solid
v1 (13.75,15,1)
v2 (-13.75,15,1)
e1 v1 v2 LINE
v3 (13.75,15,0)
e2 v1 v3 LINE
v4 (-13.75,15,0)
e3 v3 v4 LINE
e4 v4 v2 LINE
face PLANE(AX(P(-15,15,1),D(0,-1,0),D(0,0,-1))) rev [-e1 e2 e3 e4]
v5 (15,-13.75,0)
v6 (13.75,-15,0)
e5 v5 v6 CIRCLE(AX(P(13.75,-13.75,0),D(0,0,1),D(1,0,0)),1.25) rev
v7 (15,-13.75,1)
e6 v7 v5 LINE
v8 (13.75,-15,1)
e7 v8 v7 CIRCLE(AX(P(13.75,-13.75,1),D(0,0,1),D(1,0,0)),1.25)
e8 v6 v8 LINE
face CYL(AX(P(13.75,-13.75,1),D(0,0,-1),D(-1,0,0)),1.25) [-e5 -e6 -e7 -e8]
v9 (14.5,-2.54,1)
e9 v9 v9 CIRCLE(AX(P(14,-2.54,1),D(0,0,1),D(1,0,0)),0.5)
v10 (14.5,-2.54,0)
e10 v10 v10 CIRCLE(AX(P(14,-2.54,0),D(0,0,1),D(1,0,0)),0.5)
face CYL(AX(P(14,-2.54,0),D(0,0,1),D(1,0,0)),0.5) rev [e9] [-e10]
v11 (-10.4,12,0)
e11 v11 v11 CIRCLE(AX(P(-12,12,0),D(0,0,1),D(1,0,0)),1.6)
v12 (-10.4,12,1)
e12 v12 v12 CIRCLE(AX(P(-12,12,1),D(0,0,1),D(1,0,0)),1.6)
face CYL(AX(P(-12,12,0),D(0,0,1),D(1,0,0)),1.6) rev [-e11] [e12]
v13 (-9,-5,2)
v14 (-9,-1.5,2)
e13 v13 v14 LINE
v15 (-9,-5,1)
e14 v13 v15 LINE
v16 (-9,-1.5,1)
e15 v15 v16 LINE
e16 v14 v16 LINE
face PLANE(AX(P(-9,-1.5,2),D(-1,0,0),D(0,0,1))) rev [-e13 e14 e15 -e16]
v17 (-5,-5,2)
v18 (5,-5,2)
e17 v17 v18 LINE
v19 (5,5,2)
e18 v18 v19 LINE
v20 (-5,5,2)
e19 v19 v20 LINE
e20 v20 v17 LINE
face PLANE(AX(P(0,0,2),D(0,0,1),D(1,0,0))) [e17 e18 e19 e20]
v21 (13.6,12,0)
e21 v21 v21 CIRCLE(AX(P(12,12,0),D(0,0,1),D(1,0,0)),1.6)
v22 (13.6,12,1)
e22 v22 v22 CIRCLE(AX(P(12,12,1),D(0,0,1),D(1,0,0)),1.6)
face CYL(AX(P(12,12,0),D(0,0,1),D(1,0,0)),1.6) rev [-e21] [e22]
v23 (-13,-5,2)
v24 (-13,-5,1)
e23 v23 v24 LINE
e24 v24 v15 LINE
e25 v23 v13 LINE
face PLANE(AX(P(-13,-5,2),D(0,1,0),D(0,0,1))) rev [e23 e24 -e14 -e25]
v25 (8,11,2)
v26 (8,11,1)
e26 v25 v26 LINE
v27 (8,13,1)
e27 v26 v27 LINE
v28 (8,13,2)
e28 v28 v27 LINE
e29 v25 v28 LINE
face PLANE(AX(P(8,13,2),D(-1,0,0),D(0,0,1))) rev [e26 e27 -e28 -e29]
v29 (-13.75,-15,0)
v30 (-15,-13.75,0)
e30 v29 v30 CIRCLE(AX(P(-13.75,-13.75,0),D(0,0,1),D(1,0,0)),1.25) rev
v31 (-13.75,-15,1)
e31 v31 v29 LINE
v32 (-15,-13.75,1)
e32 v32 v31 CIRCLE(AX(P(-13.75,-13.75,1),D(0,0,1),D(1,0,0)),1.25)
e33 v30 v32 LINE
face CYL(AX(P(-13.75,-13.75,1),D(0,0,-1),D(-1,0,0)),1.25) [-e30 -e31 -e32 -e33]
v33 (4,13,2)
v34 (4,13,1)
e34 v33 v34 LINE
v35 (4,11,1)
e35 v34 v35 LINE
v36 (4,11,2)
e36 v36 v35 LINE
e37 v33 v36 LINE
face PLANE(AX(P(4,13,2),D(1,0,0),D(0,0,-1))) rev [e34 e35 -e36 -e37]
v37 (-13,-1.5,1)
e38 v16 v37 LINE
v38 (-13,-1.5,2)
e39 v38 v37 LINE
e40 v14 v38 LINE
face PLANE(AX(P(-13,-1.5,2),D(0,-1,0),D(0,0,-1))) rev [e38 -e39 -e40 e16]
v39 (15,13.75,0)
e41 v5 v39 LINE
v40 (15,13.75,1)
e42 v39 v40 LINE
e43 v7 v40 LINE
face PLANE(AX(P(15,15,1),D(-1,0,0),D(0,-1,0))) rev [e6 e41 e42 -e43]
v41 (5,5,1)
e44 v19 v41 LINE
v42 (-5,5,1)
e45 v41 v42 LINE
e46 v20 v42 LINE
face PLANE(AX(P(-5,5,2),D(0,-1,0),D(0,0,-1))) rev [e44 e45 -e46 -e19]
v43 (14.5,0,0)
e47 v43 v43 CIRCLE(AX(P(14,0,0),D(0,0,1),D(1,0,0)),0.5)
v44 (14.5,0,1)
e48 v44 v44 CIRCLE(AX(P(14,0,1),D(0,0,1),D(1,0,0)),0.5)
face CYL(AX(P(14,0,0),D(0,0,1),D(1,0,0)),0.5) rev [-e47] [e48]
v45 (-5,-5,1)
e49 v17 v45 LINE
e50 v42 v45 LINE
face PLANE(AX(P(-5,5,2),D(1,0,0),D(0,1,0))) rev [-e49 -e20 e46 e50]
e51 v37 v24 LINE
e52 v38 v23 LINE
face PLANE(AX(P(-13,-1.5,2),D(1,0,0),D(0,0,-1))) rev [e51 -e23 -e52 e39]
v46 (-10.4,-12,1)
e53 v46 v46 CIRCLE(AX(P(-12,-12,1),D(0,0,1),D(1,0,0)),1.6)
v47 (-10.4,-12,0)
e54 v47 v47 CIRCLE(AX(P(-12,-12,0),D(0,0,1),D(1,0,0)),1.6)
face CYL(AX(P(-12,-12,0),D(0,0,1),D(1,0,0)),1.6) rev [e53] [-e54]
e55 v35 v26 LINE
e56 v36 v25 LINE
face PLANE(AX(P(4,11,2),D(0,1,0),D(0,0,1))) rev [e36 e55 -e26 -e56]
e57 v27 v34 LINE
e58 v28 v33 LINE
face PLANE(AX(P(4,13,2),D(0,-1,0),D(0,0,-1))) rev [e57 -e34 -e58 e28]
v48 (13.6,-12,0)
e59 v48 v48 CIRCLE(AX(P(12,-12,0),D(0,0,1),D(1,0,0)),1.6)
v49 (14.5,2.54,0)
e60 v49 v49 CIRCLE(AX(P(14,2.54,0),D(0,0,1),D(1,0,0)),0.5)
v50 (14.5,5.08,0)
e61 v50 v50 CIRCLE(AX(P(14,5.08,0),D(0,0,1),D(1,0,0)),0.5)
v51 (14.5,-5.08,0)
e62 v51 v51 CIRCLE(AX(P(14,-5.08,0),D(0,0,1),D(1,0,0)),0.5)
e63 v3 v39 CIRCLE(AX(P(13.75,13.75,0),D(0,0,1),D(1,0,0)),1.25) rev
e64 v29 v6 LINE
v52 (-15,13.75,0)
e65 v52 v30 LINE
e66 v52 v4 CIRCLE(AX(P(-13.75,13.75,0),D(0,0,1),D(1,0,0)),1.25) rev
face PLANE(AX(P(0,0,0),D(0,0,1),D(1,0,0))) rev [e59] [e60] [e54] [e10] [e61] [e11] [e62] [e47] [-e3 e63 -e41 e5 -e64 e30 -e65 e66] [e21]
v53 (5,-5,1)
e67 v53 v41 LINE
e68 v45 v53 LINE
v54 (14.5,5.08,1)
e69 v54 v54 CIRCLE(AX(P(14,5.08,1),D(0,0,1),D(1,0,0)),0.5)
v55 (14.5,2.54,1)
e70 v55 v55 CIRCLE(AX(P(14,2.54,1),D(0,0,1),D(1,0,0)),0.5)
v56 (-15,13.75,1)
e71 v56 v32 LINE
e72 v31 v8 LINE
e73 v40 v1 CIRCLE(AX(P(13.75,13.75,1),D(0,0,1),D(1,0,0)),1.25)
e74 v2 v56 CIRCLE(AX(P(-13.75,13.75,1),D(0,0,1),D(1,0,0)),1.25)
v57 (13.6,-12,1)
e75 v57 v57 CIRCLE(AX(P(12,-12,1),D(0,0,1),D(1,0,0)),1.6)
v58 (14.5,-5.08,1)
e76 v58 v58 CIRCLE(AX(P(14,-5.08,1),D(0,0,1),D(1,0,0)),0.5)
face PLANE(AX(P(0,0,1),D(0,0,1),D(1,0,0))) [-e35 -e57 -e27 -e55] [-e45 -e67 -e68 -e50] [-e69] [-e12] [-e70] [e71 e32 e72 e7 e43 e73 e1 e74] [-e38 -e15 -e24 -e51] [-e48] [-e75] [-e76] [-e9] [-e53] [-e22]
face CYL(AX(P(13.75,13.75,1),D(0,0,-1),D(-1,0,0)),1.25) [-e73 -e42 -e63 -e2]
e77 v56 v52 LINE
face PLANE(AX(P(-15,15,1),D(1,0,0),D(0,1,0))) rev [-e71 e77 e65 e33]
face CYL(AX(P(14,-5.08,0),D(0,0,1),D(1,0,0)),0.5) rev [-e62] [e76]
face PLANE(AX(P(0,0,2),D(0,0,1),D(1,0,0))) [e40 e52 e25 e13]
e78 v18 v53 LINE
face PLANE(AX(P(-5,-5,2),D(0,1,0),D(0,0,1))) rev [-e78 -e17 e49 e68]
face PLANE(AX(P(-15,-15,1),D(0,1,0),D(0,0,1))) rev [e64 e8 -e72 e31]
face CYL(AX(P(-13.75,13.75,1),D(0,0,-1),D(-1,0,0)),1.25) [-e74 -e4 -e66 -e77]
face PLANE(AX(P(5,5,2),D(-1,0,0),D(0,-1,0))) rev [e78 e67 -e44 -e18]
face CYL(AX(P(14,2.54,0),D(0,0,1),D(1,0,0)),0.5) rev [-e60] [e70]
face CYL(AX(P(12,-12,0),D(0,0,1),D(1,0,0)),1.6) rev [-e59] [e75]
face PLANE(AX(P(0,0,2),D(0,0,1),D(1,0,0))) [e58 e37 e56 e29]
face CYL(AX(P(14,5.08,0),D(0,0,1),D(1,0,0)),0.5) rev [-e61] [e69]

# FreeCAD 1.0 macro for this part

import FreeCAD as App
import Part
import Sketcher

V = App.Vector


def edges_at(feature, points):
    """Names of the edges that pass closest to the given points."""
    edges = feature.Shape.Edges
    near = lambda p: min(range(len(edges)), key=lambda i: edges[i].distToShape(Part.Vertex(*p))[0])
    return sorted({f"Edge{near(p) + 1}" for p in points})


def add_polygon(sketch, points):
    """Adds a closed chain of lines whose ends are joined by coincident constraints."""
    first, n = sketch.GeometryCount, len(points)
    for a, b in zip(points, points[1:] + points[:1]):
        sketch.addGeometry(Part.LineSegment(App.Vector(*a, 0), App.Vector(*b, 0)), False)
    for i in range(n):
        sketch.addConstraint(Sketcher.Constraint("Coincident", first + i, 2, first + (i + 1) % n, 1))

doc = App.newDocument("Part")
body = doc.addObject("PartDesign::Body", "Body")

# Sketch on XY plane
sketch1 = body.newObject("Sketcher::SketchObject", "Sketch")
sketch1.AttachmentSupport = (doc.getObject("XY_Plane"), [""])
sketch1.MapMode = "FlatFace"
add_polygon(sketch1, [(-15, 15), (-15, -15), (15, -15), (15, 15)])  # lines 0-3
sketch1.addConstraint(Sketcher.Constraint("Vertical", 0))
sketch1.addConstraint(Sketcher.Constraint("Horizontal", 1))
sketch1.addConstraint(Sketcher.Constraint("Vertical", 2))
sketch1.addConstraint(Sketcher.Constraint("Horizontal", 3))
sketch1.addConstraint(Sketcher.Constraint("Symmetric", 0, 2, 2, 2, -1, 1))
sketch1.addConstraint(Sketcher.Constraint("Equal", 3, 0))
sketch1.addConstraint(Sketcher.Constraint("DistanceX", 1, 1, 1, 2, 30.0))
pad1 = body.newObject("PartDesign::Pad", "Pad")
pad1.Profile = sketch1
pad1.Length = 1
doc.recompute()

fillet = body.newObject("PartDesign::Fillet", "Fillet")
fillet.Base = (pad1, edges_at(pad1, [
    (15, -15, 0.5),
    (-15, -15, 0.5),
    (-15, 15, 0.5),
    (15, 15, 0.5),
]))
fillet.Radius = 1.25

# Sketch on XY plane
sketch2 = body.newObject("Sketcher::SketchObject", "Sketch001")
sketch2.AttachmentSupport = (doc.getObject("XY_Plane"), [""])
sketch2.MapMode = "FlatFace"
sketch2.AttachmentOffset = App.Placement(V(0, 0, 1), App.Rotation())
sketch2.addGeometry(Part.Circle(V(-12, 12, 0), V(0, 0, 1), 1.6), False)
sketch2.addGeometry(Part.Circle(V(12, 12, 0), V(0, 0, 1), 1.6), False)
sketch2.addGeometry(Part.Circle(V(-12, -12, 0), V(0, 0, 1), 1.6), False)
sketch2.addGeometry(Part.Circle(V(12, -12, 0), V(0, 0, 1), 1.6), False)
sketch2.addConstraint(Sketcher.Constraint("Equal", 0, 1))
sketch2.addConstraint(Sketcher.Constraint("Equal", 1, 2))
sketch2.addConstraint(Sketcher.Constraint("Equal", 2, 3))
sketch2.addConstraint(Sketcher.Constraint("Symmetric", 1, 3, 2, 3, -1, 1))
sketch2.addConstraint(Sketcher.Constraint("Symmetric", 0, 3, 3, 3, -1, 1))
sketch2.addConstraint(Sketcher.Constraint("Symmetric", 0, 3, 1, 3, -2))
sketch2.addConstraint(Sketcher.Constraint("Diameter", 0, 3.2))
sketch2.addConstraint(Sketcher.Constraint("DistanceX", 0, 3, -1, 1, 12.0))
sketch2.addConstraint(Sketcher.Constraint("DistanceY", -1, 1, 0, 3, 12.0))
pocket1 = body.newObject("PartDesign::Pocket", "Pocket")
pocket1.Profile = sketch2
pocket1.Length = 1

# Sketch on XY plane
sketch3 = body.newObject("Sketcher::SketchObject", "Sketch002")
sketch3.AttachmentSupport = (doc.getObject("XY_Plane"), [""])
sketch3.MapMode = "FlatFace"
sketch3.AttachmentOffset = App.Placement(V(0, 0, 1), App.Rotation())
sketch3.addGeometry(Part.Circle(V(14, 0, 0), V(0, 0, 1), 0.5), False)
sketch3.addConstraint(Sketcher.Constraint("PointOnObject", 0, 3, -1))
sketch3.addConstraint(Sketcher.Constraint("Diameter", 0, 1.0))
sketch3.addConstraint(Sketcher.Constraint("DistanceX", -1, 1, 0, 3, 14.0))
pocket2 = body.newObject("PartDesign::Pocket", "Pocket001")
pocket2.Profile = sketch3
pocket2.Length = 1
doc.recompute()

linearpattern = body.newObject("PartDesign::LinearPattern", "LinearPattern")
linearpattern.Originals = [pocket2]
linearpattern.Direction = (doc.getObject("Y_Axis"), [""])
linearpattern.Mode = "offset"
linearpattern.Offset = 2.54
linearpattern.Occurrences = 3
linearpattern.Reversed = True
body.Tip = linearpattern
doc.recompute()

linearpattern2 = body.newObject("PartDesign::LinearPattern", "LinearPattern001")
linearpattern2.Originals = [pocket2]
linearpattern2.Direction = (doc.getObject("Y_Axis"), [""])
linearpattern2.Mode = "offset"
linearpattern2.Offset = 2.54
linearpattern2.Occurrences = 3
body.Tip = linearpattern2

# Sketch on XY plane
sketch4 = body.newObject("Sketcher::SketchObject", "Sketch003")
sketch4.AttachmentSupport = (doc.getObject("XY_Plane"), [""])
sketch4.MapMode = "FlatFace"
sketch4.AttachmentOffset = App.Placement(V(0, 0, 1), App.Rotation())
add_polygon(sketch4, [(-5, 5), (-5, -5), (5, -5), (5, 5)])  # lines 0-3
sketch4.addConstraint(Sketcher.Constraint("Vertical", 0))
sketch4.addConstraint(Sketcher.Constraint("Horizontal", 1))
sketch4.addConstraint(Sketcher.Constraint("Vertical", 2))
sketch4.addConstraint(Sketcher.Constraint("Horizontal", 3))
sketch4.addConstraint(Sketcher.Constraint("Symmetric", 0, 2, 2, 2, -1, 1))
sketch4.addConstraint(Sketcher.Constraint("Equal", 3, 0))
sketch4.addConstraint(Sketcher.Constraint("DistanceX", 1, 1, 1, 2, 10.0))
pad2 = body.newObject("PartDesign::Pad", "Pad001")
pad2.Profile = sketch4
pad2.Length = 1

# Sketch on XY plane
sketch5 = body.newObject("Sketcher::SketchObject", "Sketch004")
sketch5.AttachmentSupport = (doc.getObject("XY_Plane"), [""])
sketch5.MapMode = "FlatFace"
sketch5.AttachmentOffset = App.Placement(V(0, 0, 1), App.Rotation())
add_polygon(sketch5, [(-13, -1.5), (-13, -5), (-9, -5), (-9, -1.5)])  # lines 0-3
add_polygon(sketch5, [(4, 13), (4, 11), (8, 11), (8, 13)])  # lines 4-7
sketch5.addConstraint(Sketcher.Constraint("Vertical", 0))
sketch5.addConstraint(Sketcher.Constraint("Horizontal", 1))
sketch5.addConstraint(Sketcher.Constraint("Vertical", 2))
sketch5.addConstraint(Sketcher.Constraint("Horizontal", 3))
sketch5.addConstraint(Sketcher.Constraint("Vertical", 4))
sketch5.addConstraint(Sketcher.Constraint("Horizontal", 5))
sketch5.addConstraint(Sketcher.Constraint("Vertical", 6))
sketch5.addConstraint(Sketcher.Constraint("Horizontal", 7))
sketch5.addConstraint(Sketcher.Constraint("Equal", 3, 5))
sketch5.addConstraint(Sketcher.Constraint("DistanceX", 1, 1, 1, 2, 4.0))
sketch5.addConstraint(Sketcher.Constraint("DistanceY", 4, 2, 4, 1, 2.0))
sketch5.addConstraint(Sketcher.Constraint("DistanceY", 0, 2, 0, 1, 3.5))
sketch5.addConstraint(Sketcher.Constraint("DistanceX", 0, 2, -1, 1, 13.0))
sketch5.addConstraint(Sketcher.Constraint("DistanceY", 0, 2, -1, 1, 5.0))
sketch5.addConstraint(Sketcher.Constraint("DistanceX", -1, 1, 4, 2, 4.0))
sketch5.addConstraint(Sketcher.Constraint("DistanceY", -1, 1, 4, 2, 11.0))
pad3 = body.newObject("PartDesign::Pad", "Pad002")
pad3.Profile = sketch5
pad3.Length = 1

doc.recompute()
